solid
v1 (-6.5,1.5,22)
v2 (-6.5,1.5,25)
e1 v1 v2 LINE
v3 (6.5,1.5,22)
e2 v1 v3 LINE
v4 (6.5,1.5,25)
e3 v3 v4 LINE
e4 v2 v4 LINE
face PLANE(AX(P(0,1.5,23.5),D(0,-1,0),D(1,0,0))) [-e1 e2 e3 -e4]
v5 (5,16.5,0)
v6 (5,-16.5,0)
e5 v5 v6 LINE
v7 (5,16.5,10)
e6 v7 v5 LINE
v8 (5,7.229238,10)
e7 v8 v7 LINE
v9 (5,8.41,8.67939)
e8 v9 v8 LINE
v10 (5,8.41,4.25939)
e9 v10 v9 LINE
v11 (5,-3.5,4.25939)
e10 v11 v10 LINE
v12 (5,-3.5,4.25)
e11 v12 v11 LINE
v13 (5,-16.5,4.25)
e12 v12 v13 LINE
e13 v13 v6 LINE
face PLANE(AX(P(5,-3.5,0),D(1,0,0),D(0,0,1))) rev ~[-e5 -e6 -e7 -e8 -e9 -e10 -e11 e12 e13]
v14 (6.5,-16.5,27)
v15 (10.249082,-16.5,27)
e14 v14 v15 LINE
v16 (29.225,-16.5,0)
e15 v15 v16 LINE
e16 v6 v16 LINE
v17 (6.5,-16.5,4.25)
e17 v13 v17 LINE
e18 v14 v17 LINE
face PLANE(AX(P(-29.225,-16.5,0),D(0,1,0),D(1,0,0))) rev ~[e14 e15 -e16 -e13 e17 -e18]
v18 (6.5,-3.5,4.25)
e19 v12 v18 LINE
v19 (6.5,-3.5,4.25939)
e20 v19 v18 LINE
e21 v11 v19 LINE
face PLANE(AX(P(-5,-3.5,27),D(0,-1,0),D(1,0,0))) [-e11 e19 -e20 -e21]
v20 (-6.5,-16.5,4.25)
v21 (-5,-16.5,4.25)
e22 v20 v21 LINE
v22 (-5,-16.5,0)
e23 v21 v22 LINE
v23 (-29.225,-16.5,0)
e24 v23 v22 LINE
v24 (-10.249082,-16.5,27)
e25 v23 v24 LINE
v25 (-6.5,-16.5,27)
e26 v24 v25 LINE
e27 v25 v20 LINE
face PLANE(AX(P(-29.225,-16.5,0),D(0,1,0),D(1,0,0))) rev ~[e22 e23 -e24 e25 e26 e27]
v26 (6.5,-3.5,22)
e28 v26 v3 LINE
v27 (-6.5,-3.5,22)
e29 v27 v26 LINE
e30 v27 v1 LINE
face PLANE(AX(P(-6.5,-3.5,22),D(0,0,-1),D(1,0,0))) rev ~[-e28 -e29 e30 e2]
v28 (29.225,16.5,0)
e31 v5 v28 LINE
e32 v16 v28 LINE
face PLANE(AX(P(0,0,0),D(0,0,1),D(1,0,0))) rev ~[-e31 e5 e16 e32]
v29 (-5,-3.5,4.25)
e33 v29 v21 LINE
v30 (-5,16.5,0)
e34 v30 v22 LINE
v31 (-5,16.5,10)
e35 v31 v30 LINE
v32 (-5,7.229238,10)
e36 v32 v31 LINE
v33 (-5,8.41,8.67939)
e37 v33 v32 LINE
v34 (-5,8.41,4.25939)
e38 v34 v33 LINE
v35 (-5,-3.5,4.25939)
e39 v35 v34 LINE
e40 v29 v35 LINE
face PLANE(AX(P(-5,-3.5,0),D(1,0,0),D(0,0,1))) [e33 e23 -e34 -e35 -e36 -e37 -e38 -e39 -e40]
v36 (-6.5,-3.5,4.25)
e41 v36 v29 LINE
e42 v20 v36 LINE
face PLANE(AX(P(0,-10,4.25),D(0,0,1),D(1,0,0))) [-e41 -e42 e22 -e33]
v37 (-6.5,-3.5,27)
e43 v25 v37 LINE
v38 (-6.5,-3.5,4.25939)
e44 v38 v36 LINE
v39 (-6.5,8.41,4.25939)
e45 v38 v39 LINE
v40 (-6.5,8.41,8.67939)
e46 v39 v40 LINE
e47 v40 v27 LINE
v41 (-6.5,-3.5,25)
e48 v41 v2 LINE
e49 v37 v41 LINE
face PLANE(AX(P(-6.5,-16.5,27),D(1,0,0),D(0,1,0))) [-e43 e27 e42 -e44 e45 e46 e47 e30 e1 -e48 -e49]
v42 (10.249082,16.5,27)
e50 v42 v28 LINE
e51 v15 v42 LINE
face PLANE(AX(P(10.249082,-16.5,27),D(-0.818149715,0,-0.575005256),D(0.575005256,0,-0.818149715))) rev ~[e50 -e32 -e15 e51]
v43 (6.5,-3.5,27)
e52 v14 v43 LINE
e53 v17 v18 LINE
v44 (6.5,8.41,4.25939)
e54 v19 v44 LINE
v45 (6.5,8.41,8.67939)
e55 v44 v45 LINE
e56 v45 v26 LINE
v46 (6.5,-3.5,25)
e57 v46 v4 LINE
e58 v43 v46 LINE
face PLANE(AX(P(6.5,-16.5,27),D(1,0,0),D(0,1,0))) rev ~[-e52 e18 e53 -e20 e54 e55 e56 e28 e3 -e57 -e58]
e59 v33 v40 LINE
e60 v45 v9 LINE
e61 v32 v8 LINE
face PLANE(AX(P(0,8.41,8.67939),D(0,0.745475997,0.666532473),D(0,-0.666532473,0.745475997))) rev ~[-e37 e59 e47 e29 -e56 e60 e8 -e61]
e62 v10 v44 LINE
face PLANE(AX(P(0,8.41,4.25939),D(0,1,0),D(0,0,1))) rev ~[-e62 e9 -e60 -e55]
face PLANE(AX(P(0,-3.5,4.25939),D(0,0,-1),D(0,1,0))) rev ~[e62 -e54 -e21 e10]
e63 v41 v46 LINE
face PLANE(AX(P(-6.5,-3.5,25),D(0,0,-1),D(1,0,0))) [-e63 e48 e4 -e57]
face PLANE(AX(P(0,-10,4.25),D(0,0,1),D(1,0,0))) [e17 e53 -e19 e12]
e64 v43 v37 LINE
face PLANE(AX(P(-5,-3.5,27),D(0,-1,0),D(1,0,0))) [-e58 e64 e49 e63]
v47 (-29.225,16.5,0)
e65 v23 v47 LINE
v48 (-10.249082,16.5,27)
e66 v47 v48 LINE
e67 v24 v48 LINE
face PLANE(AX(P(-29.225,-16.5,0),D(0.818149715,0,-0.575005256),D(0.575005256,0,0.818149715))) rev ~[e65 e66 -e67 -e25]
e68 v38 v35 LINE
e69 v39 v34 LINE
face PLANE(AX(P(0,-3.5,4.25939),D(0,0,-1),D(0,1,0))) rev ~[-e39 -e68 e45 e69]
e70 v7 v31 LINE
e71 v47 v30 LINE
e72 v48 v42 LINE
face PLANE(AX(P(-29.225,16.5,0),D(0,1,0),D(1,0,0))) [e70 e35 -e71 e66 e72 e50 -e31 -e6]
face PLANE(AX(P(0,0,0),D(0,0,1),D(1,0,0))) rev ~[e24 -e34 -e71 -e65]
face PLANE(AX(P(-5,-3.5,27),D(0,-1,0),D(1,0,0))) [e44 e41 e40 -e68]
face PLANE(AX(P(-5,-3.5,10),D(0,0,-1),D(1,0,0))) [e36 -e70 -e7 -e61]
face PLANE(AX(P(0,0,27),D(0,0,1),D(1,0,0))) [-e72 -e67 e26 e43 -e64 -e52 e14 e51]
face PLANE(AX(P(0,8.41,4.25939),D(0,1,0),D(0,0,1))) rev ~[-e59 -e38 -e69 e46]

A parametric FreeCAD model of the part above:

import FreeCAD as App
import Part
import Sketcher

V = App.Vector
Q = App.Units.Quantity


def add_polygon(sketch, points):
    """Adds a closed chain of lines whose ends are joined by coincident constraints."""
    first, n = sketch.GeometryCount, len(points)
    for a, b in zip(points, points[1:] + points[:1]):
        sketch.addGeometry(Part.LineSegment(App.Vector(*a, 0), App.Vector(*b, 0)), False)
    for i in range(n):
        sketch.addConstraint(Sketcher.Constraint("Coincident", first + i, 2, first + (i + 1) % n, 1))

doc = App.newDocument("Part")
body = doc.addObject("PartDesign::Body", "Body")

# Sketch on XY plane
sketch1 = body.newObject("Sketcher::SketchObject", "Sketch")
sketch1.AttachmentSupport = (doc.getObject("XY_Plane"), [""])
sketch1.MapMode = "FlatFace"
add_polygon(sketch1, [(-29.225, 16.5), (-29.225, -16.5), (29.225, -16.5), (29.225, 16.5)])  # lines 0-3
sketch1.addConstraint([
    Sketcher.Constraint("Vertical", 0),
    Sketcher.Constraint("Horizontal", 1),
    Sketcher.Constraint("Vertical", 2),
    Sketcher.Constraint("Horizontal", 3),
    Sketcher.Constraint("Symmetric", 0, 2, 2, 2, -1, 1),
    Sketcher.Constraint("DistanceY", 0, 2, 0, 1, 33.0),
    Sketcher.Constraint("DistanceX", 1, 1, 1, 2, 58.45),
])
pad1 = body.newObject("PartDesign::Pad", "Pad")
pad1.Profile = sketch1
pad1.Length = 27

# Sketch on XZ plane
sketch2 = body.newObject("Sketcher::SketchObject", "Sketch001")
sketch2.AttachmentSupport = (doc.getObject("XZ_Plane"), [""])
sketch2.MapMode = "FlatFace"
sketch2.AttachmentOffset = App.Placement(V(0, 0, 16.5), App.Rotation())
add_polygon(sketch2, [(-29.225, 27), (-29.225, 0), (-10.249082, 27)])  # lines 0-2
add_polygon(sketch2, [(29.225, 27), (10.249082, 27), (29.225, 0)])  # lines 3-5
sketch2.addConstraint([
    Sketcher.Constraint("Vertical", 0),
    Sketcher.Constraint("Horizontal", 2),
    Sketcher.Constraint("Horizontal", 3),
    Sketcher.Constraint("Vertical", 5),
    Sketcher.Constraint("Symmetric", 0, 2, 4, 2, -1, 1),
    Sketcher.Constraint("Symmetric", 1, 2, 3, 2, -2),
    Sketcher.Constraint("PointOnObject", 0, 2, -1),
    Sketcher.Constraint("DistanceY", 0, 2, 0, 1, 27.0),
    Sketcher.Constraint("Angle", 1, Q("54.9 deg")),
    Sketcher.Constraint("DistanceX", 0, 2, 4, 2, 58.45),
])
pocket1 = body.newObject("PartDesign::Pocket", "Pocket")
pocket1.Profile = sketch2
pocket1.Length = 33

# Sketch on XY plane
sketch3 = body.newObject("Sketcher::SketchObject", "Sketch002")
sketch3.AttachmentSupport = (doc.getObject("XY_Plane"), [""])
sketch3.MapMode = "FlatFace"
sketch3.AttachmentOffset = App.Placement(V(0, 0, 27), App.Rotation())
add_polygon(sketch3, [(-5, -3.5), (-5, -16.5), (5, -16.5), (5, -3.5)])  # lines 0-3
sketch3.addConstraint([
    Sketcher.Constraint("Vertical", 0),
    Sketcher.Constraint("Horizontal", 1),
    Sketcher.Constraint("Vertical", 2),
    Sketcher.Constraint("Horizontal", 3),
    Sketcher.Constraint("DistanceX", 1, 1, 1, 2, 10.0),
    Sketcher.Constraint("DistanceY", 0, 2, 0, 1, 13.0),
    Sketcher.Constraint("DistanceX", 0, 2, -1, 1, 5.0),
    Sketcher.Constraint("DistanceY", 0, 2, -1, 1, 16.5),
])
pocket2 = body.newObject("PartDesign::Pocket", "Pocket001")
pocket2.Profile = sketch3
pocket2.Length = 27

# Sketch on XY plane
sketch4 = body.newObject("Sketcher::SketchObject", "Sketch003")
sketch4.AttachmentSupport = (doc.getObject("XY_Plane"), [""])
sketch4.MapMode = "FlatFace"
sketch4.AttachmentOffset = App.Placement(V(0, 0, 27), App.Rotation())
add_polygon(sketch4, [(-6.5, -3.5), (-6.5, -16.5), (6.5, -16.5), (6.5, -3.5)])  # lines 0-3
sketch4.addConstraint([
    Sketcher.Constraint("Vertical", 0),
    Sketcher.Constraint("Horizontal", 1),
    Sketcher.Constraint("Vertical", 2),
    Sketcher.Constraint("Horizontal", 3),
    Sketcher.Constraint("Equal", 3, 0),
    Sketcher.Constraint("DistanceX", 1, 1, 1, 2, 13.0),
    Sketcher.Constraint("DistanceX", 0, 2, -1, 1, 6.5),
    Sketcher.Constraint("DistanceY", 0, 2, -1, 1, 16.5),
])
pocket3 = body.newObject("PartDesign::Pocket", "Pocket002")
pocket3.Profile = sketch4
pocket3.Length = 22.75

# Sketch on XZ plane
sketch5 = body.newObject("Sketcher::SketchObject", "Sketch004")
sketch5.AttachmentSupport = (doc.getObject("XZ_Plane"), [""])
sketch5.MapMode = "FlatFace"
sketch5.AttachmentOffset = App.Placement(V(0, 0, 3.5), App.Rotation())
add_polygon(sketch5, [(-6.5, 25), (-6.5, 22), (6.5, 22), (6.5, 25)])  # lines 0-3
sketch5.addConstraint([
    Sketcher.Constraint("Vertical", 0),
    Sketcher.Constraint("Horizontal", 1),
    Sketcher.Constraint("Vertical", 2),
    Sketcher.Constraint("Horizontal", 3),
    Sketcher.Constraint("DistanceX", 1, 1, 1, 2, 13.0),
    Sketcher.Constraint("DistanceY", 0, 2, 0, 1, 3.0),
    Sketcher.Constraint("DistanceY", -1, 1, 0, 2, 22.0),
    Sketcher.Constraint("DistanceX", 0, 2, -1, 1, 6.5),
])
pocket4 = body.newObject("PartDesign::Pocket", "Pocket003")
pocket4.Profile = sketch5
pocket4.Length = 5

# Sketch on XZ plane
sketch6 = body.newObject("Sketcher::SketchObject", "Sketch005")
sketch6.AttachmentSupport = (doc.getObject("XZ_Plane"), [""])
sketch6.MapMode = "FlatFace"
sketch6.AttachmentOffset = App.Placement(V(0, 0, 3.5), App.Rotation())
add_polygon(sketch6, [(-5, 10), (-5, 0), (5, 0), (5, 10)])  # lines 0-3
sketch6.addConstraint([
    Sketcher.Constraint("Vertical", 0),
    Sketcher.Constraint("Horizontal", 1),
    Sketcher.Constraint("Vertical", 2),
    Sketcher.Constraint("Horizontal", 3),
    Sketcher.Constraint("Symmetric", 0, 2, 1, 2, -1, 1),
    Sketcher.Constraint("Equal", 3, 0),
    Sketcher.Constraint("DistanceX", 1, 1, 1, 2, 10.0),
])
pocket5 = body.newObject("PartDesign::Pocket", "Pocket004")
pocket5.Profile = sketch6
pocket5.Length = 33

# Sketch on YZ plane
sketch7 = body.newObject("Sketcher::SketchObject", "Sketch006")
sketch7.AttachmentSupport = (doc.getObject("YZ_Plane"), [""])
sketch7.MapMode = "FlatFace"
add_polygon(sketch7, [(-3.5, 22), (-3.5, 4.25939), (8.41, 4.25939), (8.41, 8.67939)])  # lines 0-3
sketch7.addConstraint([
    Sketcher.Constraint("Vertical", 0),
    Sketcher.Constraint("Horizontal", 1),
    Sketcher.Constraint("Vertical", 2),
    Sketcher.Constraint("DistanceY", -1, 1, 3, 2, 22.0),
    Sketcher.Constraint("Angle", 3, Q("131.8 deg")),
    Sketcher.Constraint("DistanceX", 1, 1, 1, 2, 11.91),
    Sketcher.Constraint("DistanceY", 2, 1, 2, 2, 4.42),
    Sketcher.Constraint("DistanceX", 0, 2, -1, 1, 3.5),
])
pocket6 = body.newObject("PartDesign::Pocket", "Pocket005")
pocket6.Profile = sketch7
pocket6.Length = 13
pocket6.Midplane = True

doc.recompute()
